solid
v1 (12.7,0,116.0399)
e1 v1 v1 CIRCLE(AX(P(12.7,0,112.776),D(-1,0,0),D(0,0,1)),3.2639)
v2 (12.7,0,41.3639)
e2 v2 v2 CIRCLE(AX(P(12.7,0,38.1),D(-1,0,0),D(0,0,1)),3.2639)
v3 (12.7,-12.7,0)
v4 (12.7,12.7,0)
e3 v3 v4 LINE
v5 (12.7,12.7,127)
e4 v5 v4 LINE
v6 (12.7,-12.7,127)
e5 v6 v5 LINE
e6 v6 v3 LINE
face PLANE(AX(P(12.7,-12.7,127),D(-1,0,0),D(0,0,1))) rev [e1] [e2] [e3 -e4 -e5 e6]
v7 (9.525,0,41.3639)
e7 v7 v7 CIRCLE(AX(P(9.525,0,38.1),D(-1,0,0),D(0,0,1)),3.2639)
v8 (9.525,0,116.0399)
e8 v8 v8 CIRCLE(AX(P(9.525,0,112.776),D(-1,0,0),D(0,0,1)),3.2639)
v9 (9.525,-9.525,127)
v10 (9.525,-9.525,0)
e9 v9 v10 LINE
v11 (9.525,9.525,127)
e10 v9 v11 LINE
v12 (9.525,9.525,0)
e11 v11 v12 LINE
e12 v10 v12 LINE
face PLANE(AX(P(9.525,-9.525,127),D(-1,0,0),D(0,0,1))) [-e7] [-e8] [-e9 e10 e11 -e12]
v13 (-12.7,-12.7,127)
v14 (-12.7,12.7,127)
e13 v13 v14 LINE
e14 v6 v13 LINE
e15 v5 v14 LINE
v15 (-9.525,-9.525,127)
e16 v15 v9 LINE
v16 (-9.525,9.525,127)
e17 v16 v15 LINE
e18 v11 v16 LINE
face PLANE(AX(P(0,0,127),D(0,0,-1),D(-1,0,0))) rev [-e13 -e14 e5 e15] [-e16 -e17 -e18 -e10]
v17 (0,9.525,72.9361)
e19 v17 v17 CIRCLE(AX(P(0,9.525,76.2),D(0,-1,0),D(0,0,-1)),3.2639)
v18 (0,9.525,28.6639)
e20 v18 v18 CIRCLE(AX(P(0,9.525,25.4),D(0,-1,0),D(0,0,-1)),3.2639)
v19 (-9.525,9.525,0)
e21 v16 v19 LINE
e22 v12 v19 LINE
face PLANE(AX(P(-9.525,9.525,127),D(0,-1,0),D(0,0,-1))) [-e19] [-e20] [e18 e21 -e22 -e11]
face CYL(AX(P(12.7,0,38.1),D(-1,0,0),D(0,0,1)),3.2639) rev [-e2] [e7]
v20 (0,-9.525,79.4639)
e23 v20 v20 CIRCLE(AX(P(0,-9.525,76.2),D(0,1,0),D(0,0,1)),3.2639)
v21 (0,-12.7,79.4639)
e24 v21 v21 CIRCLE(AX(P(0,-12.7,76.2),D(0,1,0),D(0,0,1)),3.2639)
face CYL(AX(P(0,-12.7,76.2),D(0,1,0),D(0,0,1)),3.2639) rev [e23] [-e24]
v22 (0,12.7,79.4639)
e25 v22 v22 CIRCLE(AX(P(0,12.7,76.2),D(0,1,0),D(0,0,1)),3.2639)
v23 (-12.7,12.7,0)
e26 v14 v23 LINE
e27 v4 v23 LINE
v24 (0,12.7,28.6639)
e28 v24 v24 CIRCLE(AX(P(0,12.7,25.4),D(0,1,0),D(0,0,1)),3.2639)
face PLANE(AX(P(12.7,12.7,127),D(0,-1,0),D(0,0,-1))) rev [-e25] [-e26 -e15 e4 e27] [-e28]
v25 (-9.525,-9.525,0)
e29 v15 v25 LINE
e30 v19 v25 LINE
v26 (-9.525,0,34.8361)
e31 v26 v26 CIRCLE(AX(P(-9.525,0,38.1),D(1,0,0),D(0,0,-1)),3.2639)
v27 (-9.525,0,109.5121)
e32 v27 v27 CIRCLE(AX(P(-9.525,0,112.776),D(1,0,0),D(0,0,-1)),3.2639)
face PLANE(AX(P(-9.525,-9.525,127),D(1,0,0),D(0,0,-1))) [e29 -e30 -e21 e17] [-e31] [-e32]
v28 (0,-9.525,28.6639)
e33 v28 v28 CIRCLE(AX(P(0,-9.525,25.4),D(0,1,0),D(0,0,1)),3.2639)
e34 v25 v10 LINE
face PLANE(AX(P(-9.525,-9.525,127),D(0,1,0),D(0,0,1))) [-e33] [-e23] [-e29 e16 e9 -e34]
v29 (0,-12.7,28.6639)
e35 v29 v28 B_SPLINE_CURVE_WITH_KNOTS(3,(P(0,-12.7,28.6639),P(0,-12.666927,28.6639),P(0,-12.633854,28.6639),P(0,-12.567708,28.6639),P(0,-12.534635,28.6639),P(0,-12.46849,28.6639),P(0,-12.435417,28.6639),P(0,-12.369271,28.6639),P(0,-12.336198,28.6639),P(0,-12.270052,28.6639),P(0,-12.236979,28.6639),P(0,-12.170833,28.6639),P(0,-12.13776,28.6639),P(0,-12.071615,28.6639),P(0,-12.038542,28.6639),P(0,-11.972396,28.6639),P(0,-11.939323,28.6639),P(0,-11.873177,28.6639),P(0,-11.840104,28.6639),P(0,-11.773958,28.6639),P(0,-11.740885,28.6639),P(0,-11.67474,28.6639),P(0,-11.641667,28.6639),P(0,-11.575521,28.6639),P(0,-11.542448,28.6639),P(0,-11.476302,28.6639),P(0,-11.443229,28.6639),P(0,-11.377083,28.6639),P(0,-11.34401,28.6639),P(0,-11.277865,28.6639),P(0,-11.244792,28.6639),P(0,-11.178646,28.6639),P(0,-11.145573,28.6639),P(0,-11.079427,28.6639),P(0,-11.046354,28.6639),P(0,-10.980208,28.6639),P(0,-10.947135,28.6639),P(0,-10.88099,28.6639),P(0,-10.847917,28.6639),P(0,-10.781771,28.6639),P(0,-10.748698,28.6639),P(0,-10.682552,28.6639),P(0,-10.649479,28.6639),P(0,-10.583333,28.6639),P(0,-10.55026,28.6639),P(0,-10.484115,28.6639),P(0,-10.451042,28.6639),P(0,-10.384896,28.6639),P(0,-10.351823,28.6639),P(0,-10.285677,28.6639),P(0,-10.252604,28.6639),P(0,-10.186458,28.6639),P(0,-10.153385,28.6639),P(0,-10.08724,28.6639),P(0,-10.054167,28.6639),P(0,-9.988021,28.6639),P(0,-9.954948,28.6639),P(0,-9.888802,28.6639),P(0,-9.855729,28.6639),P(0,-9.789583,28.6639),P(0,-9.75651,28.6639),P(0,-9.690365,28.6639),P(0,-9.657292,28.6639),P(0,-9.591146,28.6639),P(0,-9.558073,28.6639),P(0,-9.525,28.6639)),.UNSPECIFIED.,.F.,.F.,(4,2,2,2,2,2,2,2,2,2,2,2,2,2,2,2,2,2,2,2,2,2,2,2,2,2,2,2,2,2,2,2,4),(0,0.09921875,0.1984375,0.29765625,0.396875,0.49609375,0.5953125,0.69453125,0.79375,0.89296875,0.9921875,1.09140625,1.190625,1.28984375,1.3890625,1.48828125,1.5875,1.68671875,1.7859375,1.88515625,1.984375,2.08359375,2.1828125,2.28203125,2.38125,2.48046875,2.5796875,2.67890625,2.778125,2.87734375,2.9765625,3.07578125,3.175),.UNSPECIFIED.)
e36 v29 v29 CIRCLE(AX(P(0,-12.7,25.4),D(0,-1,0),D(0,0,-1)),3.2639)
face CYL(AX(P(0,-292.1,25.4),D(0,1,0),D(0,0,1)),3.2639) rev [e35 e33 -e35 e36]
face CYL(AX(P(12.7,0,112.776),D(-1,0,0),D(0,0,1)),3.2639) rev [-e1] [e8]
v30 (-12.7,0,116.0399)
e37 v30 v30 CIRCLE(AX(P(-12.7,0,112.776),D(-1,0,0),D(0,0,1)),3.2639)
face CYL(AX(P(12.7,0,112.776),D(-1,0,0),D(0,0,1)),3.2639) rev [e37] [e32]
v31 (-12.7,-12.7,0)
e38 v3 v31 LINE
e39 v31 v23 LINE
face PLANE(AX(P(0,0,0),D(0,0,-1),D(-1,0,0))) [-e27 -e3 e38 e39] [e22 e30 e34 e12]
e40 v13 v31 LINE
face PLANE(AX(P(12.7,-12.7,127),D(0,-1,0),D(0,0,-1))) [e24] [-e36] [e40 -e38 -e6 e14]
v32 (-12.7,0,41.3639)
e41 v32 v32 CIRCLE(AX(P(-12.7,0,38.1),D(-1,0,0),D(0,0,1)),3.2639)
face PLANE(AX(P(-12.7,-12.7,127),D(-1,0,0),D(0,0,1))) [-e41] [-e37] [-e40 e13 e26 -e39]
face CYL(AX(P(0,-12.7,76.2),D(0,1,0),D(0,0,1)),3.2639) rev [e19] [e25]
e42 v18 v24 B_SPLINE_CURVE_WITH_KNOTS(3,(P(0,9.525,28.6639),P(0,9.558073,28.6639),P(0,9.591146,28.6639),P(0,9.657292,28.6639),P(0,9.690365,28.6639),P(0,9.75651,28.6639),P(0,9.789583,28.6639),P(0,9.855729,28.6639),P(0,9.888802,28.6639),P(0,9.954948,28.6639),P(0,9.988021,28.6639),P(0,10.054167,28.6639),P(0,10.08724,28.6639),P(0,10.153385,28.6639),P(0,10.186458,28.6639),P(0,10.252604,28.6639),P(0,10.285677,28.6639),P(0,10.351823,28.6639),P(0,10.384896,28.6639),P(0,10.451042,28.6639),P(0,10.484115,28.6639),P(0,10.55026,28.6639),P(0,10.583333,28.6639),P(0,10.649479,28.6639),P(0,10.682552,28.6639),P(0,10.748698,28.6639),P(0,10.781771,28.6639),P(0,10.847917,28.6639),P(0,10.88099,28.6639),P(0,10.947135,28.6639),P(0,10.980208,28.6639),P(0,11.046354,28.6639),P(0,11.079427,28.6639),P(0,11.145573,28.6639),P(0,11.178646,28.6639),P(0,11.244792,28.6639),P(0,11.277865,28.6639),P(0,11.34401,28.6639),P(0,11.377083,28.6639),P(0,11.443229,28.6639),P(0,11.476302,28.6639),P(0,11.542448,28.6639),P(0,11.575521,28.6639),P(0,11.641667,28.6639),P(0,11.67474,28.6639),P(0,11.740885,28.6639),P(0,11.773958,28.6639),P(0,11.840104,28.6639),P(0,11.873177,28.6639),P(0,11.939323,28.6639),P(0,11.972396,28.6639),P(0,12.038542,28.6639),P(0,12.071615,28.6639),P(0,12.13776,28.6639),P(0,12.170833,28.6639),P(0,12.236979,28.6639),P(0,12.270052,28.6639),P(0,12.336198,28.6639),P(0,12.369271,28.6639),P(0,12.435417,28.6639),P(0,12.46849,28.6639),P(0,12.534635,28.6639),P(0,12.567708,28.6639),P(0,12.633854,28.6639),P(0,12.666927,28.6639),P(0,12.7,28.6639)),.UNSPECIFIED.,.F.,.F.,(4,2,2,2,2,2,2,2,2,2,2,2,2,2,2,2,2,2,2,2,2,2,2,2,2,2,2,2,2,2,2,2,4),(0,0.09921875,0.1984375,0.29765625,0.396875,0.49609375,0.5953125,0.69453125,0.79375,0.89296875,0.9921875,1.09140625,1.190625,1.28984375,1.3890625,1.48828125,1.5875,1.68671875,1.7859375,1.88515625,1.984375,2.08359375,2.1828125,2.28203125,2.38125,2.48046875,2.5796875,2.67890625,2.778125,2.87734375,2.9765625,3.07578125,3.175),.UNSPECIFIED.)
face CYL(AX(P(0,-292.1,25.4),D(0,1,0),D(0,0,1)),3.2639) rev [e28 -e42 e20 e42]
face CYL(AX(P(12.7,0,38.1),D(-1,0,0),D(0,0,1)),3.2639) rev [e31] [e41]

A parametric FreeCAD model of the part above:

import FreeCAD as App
import Part
import Sketcher

V = App.Vector
Q = App.Units.Quantity


def add_polygon(sketch, points):
    """Adds a closed chain of lines whose ends are joined by coincident constraints."""
    first, n = sketch.GeometryCount, len(points)
    for a, b in zip(points, points[1:] + points[:1]):
        sketch.addGeometry(Part.LineSegment(App.Vector(*a, 0), App.Vector(*b, 0)), False)
    for i in range(n):
        sketch.addConstraint(Sketcher.Constraint("Coincident", first + i, 2, first + (i + 1) % n, 1))

doc = App.newDocument("Part")
body = doc.addObject("PartDesign::Body", "Body")

# Sketch on XY plane
sketch1 = doc.addObject("Sketcher::SketchObject", "Sketch")
body.addObject(sketch1)
sketch1.AttachmentSupport = (doc.XY_Plane, [""])
sketch1.MapMode = "FlatFace"
add_polygon(sketch1, [(-12.7, 12.7), (-12.7, -12.7), (12.7, -12.7), (12.7, 12.7)])  # lines 0-3
sketch1.addConstraint(Sketcher.Constraint("Vertical", 0))
sketch1.addConstraint(Sketcher.Constraint("Horizontal", 1))
sketch1.addConstraint(Sketcher.Constraint("Vertical", 2))
sketch1.addConstraint(Sketcher.Constraint("Horizontal", 3))
sketch1.addConstraint(Sketcher.Constraint("Symmetric", 0, 2, 2, 2, -1, 1))
sketch1.addConstraint(Sketcher.Constraint("Equal", 3, 0))
sketch1.addConstraint(Sketcher.Constraint("DistanceX", 1, 1, 1, 2, Q("1 in")))
pad1 = doc.addObject("PartDesign::Pad", "Pad")
body.addObject(pad1)
pad1.Profile = sketch1
pad1.Length = Q("5 in")

# Sketch on XY plane
sketch2 = doc.addObject("Sketcher::SketchObject", "Sketch001")
body.addObject(sketch2)
sketch2.AttachmentSupport = (doc.XY_Plane, [""])
sketch2.MapMode = "FlatFace"
add_polygon(sketch2, [(-9.525, 9.525), (-9.525, -9.525), (9.525, -9.525), (9.525, 9.525)])  # lines 0-3
sketch2.addConstraint(Sketcher.Constraint("Vertical", 0))
sketch2.addConstraint(Sketcher.Constraint("Horizontal", 1))
sketch2.addConstraint(Sketcher.Constraint("Vertical", 2))
sketch2.addConstraint(Sketcher.Constraint("Horizontal", 3))
sketch2.addConstraint(Sketcher.Constraint("Symmetric", 0, 2, 2, 2, -1, 1))
sketch2.addConstraint(Sketcher.Constraint("Equal", 3, 0))
sketch2.addConstraint(Sketcher.Constraint("DistanceX", 1, 1, 1, 2, Q("0.75 in")))
pocket1 = doc.addObject("PartDesign::Pocket", "Pocket")
body.addObject(pocket1)
pocket1.Profile = sketch2
pocket1.Type = "ThroughAll"
pocket1.Reversed = True

# Sketch on XZ plane
sketch3 = doc.addObject("Sketcher::SketchObject", "Sketch002")
body.addObject(sketch3)
sketch3.AttachmentSupport = (doc.XZ_Plane, [""])
sketch3.MapMode = "FlatFace"
sketch3.AttachmentOffset = App.Placement(V(0, 0, -0.5 * 25.4), App.Rotation())
sketch3.addGeometry(Part.Circle(V(0, 25.4, 0), V(0, 0, 1), 3.2639), False)
sketch3.addConstraint(Sketcher.Constraint("PointOnObject", 0, 3, -2))
sketch3.addConstraint(Sketcher.Constraint("Diameter", 0, Q("0.257 in")))
sketch3.addConstraint(Sketcher.Constraint("DistanceY", -1, 1, 0, 3, Q("1 in")))
pocket2 = doc.addObject("PartDesign::Pocket", "Pocket001")
body.addObject(pocket2)
pocket2.Profile = sketch3
pocket2.Length = Q("12 in")
pocket2.Reversed = True

# Sketch on XZ plane
sketch4 = doc.addObject("Sketcher::SketchObject", "Sketch003")
body.addObject(sketch4)
sketch4.AttachmentSupport = (doc.XZ_Plane, [""])
sketch4.MapMode = "FlatFace"
sketch4.AttachmentOffset = App.Placement(V(0, 0, -0.5 * 25.4), App.Rotation())
sketch4.addGeometry(Part.Circle(V(0, 76.2, 0), V(0, 0, 1), 3.2639), False)
sketch4.addConstraint(Sketcher.Constraint("PointOnObject", 0, 3, -2))
sketch4.addConstraint(Sketcher.Constraint("Diameter", 0, Q("0.257 in")))
sketch4.addConstraint(Sketcher.Constraint("DistanceY", -1, 1, 0, 3, Q("3 in")))
pocket3 = doc.addObject("PartDesign::Pocket", "Pocket002")
body.addObject(pocket3)
pocket3.Profile = sketch4
pocket3.Type = "ThroughAll"
pocket3.Reversed = True

# Sketch on YZ plane
sketch5 = doc.addObject("Sketcher::SketchObject", "Sketch004")
body.addObject(sketch5)
sketch5.AttachmentSupport = (doc.YZ_Plane, [""])
sketch5.MapMode = "FlatFace"
sketch5.AttachmentOffset = App.Placement(V(0, 0, -0.5 * 25.4), App.Rotation())
sketch5.addGeometry(Part.Circle(V(0, 38.1, 0), V(0, 0, 1), 3.2639), False)
sketch5.addGeometry(Part.Circle(V(0, 112.776, 0), V(0, 0, 1), 3.2639), False)
sketch5.addConstraint(Sketcher.Constraint("Equal", 0, 1))
sketch5.addConstraint(Sketcher.Constraint("PointOnObject", 0, 3, -2))
sketch5.addConstraint(Sketcher.Constraint("PointOnObject", 1, 3, -2))
sketch5.addConstraint(Sketcher.Constraint("Diameter", 0, Q("0.257 in")))
sketch5.addConstraint(Sketcher.Constraint("DistanceY", -1, 1, 0, 3, Q("1.5 in")))
sketch5.addConstraint(Sketcher.Constraint("DistanceY", -1, 1, 1, 3, Q("4.44 in")))
pocket4 = doc.addObject("PartDesign::Pocket", "Pocket003")
body.addObject(pocket4)
pocket4.Profile = sketch5
pocket4.Type = "ThroughAll"
pocket4.Reversed = True

doc.recompute()
